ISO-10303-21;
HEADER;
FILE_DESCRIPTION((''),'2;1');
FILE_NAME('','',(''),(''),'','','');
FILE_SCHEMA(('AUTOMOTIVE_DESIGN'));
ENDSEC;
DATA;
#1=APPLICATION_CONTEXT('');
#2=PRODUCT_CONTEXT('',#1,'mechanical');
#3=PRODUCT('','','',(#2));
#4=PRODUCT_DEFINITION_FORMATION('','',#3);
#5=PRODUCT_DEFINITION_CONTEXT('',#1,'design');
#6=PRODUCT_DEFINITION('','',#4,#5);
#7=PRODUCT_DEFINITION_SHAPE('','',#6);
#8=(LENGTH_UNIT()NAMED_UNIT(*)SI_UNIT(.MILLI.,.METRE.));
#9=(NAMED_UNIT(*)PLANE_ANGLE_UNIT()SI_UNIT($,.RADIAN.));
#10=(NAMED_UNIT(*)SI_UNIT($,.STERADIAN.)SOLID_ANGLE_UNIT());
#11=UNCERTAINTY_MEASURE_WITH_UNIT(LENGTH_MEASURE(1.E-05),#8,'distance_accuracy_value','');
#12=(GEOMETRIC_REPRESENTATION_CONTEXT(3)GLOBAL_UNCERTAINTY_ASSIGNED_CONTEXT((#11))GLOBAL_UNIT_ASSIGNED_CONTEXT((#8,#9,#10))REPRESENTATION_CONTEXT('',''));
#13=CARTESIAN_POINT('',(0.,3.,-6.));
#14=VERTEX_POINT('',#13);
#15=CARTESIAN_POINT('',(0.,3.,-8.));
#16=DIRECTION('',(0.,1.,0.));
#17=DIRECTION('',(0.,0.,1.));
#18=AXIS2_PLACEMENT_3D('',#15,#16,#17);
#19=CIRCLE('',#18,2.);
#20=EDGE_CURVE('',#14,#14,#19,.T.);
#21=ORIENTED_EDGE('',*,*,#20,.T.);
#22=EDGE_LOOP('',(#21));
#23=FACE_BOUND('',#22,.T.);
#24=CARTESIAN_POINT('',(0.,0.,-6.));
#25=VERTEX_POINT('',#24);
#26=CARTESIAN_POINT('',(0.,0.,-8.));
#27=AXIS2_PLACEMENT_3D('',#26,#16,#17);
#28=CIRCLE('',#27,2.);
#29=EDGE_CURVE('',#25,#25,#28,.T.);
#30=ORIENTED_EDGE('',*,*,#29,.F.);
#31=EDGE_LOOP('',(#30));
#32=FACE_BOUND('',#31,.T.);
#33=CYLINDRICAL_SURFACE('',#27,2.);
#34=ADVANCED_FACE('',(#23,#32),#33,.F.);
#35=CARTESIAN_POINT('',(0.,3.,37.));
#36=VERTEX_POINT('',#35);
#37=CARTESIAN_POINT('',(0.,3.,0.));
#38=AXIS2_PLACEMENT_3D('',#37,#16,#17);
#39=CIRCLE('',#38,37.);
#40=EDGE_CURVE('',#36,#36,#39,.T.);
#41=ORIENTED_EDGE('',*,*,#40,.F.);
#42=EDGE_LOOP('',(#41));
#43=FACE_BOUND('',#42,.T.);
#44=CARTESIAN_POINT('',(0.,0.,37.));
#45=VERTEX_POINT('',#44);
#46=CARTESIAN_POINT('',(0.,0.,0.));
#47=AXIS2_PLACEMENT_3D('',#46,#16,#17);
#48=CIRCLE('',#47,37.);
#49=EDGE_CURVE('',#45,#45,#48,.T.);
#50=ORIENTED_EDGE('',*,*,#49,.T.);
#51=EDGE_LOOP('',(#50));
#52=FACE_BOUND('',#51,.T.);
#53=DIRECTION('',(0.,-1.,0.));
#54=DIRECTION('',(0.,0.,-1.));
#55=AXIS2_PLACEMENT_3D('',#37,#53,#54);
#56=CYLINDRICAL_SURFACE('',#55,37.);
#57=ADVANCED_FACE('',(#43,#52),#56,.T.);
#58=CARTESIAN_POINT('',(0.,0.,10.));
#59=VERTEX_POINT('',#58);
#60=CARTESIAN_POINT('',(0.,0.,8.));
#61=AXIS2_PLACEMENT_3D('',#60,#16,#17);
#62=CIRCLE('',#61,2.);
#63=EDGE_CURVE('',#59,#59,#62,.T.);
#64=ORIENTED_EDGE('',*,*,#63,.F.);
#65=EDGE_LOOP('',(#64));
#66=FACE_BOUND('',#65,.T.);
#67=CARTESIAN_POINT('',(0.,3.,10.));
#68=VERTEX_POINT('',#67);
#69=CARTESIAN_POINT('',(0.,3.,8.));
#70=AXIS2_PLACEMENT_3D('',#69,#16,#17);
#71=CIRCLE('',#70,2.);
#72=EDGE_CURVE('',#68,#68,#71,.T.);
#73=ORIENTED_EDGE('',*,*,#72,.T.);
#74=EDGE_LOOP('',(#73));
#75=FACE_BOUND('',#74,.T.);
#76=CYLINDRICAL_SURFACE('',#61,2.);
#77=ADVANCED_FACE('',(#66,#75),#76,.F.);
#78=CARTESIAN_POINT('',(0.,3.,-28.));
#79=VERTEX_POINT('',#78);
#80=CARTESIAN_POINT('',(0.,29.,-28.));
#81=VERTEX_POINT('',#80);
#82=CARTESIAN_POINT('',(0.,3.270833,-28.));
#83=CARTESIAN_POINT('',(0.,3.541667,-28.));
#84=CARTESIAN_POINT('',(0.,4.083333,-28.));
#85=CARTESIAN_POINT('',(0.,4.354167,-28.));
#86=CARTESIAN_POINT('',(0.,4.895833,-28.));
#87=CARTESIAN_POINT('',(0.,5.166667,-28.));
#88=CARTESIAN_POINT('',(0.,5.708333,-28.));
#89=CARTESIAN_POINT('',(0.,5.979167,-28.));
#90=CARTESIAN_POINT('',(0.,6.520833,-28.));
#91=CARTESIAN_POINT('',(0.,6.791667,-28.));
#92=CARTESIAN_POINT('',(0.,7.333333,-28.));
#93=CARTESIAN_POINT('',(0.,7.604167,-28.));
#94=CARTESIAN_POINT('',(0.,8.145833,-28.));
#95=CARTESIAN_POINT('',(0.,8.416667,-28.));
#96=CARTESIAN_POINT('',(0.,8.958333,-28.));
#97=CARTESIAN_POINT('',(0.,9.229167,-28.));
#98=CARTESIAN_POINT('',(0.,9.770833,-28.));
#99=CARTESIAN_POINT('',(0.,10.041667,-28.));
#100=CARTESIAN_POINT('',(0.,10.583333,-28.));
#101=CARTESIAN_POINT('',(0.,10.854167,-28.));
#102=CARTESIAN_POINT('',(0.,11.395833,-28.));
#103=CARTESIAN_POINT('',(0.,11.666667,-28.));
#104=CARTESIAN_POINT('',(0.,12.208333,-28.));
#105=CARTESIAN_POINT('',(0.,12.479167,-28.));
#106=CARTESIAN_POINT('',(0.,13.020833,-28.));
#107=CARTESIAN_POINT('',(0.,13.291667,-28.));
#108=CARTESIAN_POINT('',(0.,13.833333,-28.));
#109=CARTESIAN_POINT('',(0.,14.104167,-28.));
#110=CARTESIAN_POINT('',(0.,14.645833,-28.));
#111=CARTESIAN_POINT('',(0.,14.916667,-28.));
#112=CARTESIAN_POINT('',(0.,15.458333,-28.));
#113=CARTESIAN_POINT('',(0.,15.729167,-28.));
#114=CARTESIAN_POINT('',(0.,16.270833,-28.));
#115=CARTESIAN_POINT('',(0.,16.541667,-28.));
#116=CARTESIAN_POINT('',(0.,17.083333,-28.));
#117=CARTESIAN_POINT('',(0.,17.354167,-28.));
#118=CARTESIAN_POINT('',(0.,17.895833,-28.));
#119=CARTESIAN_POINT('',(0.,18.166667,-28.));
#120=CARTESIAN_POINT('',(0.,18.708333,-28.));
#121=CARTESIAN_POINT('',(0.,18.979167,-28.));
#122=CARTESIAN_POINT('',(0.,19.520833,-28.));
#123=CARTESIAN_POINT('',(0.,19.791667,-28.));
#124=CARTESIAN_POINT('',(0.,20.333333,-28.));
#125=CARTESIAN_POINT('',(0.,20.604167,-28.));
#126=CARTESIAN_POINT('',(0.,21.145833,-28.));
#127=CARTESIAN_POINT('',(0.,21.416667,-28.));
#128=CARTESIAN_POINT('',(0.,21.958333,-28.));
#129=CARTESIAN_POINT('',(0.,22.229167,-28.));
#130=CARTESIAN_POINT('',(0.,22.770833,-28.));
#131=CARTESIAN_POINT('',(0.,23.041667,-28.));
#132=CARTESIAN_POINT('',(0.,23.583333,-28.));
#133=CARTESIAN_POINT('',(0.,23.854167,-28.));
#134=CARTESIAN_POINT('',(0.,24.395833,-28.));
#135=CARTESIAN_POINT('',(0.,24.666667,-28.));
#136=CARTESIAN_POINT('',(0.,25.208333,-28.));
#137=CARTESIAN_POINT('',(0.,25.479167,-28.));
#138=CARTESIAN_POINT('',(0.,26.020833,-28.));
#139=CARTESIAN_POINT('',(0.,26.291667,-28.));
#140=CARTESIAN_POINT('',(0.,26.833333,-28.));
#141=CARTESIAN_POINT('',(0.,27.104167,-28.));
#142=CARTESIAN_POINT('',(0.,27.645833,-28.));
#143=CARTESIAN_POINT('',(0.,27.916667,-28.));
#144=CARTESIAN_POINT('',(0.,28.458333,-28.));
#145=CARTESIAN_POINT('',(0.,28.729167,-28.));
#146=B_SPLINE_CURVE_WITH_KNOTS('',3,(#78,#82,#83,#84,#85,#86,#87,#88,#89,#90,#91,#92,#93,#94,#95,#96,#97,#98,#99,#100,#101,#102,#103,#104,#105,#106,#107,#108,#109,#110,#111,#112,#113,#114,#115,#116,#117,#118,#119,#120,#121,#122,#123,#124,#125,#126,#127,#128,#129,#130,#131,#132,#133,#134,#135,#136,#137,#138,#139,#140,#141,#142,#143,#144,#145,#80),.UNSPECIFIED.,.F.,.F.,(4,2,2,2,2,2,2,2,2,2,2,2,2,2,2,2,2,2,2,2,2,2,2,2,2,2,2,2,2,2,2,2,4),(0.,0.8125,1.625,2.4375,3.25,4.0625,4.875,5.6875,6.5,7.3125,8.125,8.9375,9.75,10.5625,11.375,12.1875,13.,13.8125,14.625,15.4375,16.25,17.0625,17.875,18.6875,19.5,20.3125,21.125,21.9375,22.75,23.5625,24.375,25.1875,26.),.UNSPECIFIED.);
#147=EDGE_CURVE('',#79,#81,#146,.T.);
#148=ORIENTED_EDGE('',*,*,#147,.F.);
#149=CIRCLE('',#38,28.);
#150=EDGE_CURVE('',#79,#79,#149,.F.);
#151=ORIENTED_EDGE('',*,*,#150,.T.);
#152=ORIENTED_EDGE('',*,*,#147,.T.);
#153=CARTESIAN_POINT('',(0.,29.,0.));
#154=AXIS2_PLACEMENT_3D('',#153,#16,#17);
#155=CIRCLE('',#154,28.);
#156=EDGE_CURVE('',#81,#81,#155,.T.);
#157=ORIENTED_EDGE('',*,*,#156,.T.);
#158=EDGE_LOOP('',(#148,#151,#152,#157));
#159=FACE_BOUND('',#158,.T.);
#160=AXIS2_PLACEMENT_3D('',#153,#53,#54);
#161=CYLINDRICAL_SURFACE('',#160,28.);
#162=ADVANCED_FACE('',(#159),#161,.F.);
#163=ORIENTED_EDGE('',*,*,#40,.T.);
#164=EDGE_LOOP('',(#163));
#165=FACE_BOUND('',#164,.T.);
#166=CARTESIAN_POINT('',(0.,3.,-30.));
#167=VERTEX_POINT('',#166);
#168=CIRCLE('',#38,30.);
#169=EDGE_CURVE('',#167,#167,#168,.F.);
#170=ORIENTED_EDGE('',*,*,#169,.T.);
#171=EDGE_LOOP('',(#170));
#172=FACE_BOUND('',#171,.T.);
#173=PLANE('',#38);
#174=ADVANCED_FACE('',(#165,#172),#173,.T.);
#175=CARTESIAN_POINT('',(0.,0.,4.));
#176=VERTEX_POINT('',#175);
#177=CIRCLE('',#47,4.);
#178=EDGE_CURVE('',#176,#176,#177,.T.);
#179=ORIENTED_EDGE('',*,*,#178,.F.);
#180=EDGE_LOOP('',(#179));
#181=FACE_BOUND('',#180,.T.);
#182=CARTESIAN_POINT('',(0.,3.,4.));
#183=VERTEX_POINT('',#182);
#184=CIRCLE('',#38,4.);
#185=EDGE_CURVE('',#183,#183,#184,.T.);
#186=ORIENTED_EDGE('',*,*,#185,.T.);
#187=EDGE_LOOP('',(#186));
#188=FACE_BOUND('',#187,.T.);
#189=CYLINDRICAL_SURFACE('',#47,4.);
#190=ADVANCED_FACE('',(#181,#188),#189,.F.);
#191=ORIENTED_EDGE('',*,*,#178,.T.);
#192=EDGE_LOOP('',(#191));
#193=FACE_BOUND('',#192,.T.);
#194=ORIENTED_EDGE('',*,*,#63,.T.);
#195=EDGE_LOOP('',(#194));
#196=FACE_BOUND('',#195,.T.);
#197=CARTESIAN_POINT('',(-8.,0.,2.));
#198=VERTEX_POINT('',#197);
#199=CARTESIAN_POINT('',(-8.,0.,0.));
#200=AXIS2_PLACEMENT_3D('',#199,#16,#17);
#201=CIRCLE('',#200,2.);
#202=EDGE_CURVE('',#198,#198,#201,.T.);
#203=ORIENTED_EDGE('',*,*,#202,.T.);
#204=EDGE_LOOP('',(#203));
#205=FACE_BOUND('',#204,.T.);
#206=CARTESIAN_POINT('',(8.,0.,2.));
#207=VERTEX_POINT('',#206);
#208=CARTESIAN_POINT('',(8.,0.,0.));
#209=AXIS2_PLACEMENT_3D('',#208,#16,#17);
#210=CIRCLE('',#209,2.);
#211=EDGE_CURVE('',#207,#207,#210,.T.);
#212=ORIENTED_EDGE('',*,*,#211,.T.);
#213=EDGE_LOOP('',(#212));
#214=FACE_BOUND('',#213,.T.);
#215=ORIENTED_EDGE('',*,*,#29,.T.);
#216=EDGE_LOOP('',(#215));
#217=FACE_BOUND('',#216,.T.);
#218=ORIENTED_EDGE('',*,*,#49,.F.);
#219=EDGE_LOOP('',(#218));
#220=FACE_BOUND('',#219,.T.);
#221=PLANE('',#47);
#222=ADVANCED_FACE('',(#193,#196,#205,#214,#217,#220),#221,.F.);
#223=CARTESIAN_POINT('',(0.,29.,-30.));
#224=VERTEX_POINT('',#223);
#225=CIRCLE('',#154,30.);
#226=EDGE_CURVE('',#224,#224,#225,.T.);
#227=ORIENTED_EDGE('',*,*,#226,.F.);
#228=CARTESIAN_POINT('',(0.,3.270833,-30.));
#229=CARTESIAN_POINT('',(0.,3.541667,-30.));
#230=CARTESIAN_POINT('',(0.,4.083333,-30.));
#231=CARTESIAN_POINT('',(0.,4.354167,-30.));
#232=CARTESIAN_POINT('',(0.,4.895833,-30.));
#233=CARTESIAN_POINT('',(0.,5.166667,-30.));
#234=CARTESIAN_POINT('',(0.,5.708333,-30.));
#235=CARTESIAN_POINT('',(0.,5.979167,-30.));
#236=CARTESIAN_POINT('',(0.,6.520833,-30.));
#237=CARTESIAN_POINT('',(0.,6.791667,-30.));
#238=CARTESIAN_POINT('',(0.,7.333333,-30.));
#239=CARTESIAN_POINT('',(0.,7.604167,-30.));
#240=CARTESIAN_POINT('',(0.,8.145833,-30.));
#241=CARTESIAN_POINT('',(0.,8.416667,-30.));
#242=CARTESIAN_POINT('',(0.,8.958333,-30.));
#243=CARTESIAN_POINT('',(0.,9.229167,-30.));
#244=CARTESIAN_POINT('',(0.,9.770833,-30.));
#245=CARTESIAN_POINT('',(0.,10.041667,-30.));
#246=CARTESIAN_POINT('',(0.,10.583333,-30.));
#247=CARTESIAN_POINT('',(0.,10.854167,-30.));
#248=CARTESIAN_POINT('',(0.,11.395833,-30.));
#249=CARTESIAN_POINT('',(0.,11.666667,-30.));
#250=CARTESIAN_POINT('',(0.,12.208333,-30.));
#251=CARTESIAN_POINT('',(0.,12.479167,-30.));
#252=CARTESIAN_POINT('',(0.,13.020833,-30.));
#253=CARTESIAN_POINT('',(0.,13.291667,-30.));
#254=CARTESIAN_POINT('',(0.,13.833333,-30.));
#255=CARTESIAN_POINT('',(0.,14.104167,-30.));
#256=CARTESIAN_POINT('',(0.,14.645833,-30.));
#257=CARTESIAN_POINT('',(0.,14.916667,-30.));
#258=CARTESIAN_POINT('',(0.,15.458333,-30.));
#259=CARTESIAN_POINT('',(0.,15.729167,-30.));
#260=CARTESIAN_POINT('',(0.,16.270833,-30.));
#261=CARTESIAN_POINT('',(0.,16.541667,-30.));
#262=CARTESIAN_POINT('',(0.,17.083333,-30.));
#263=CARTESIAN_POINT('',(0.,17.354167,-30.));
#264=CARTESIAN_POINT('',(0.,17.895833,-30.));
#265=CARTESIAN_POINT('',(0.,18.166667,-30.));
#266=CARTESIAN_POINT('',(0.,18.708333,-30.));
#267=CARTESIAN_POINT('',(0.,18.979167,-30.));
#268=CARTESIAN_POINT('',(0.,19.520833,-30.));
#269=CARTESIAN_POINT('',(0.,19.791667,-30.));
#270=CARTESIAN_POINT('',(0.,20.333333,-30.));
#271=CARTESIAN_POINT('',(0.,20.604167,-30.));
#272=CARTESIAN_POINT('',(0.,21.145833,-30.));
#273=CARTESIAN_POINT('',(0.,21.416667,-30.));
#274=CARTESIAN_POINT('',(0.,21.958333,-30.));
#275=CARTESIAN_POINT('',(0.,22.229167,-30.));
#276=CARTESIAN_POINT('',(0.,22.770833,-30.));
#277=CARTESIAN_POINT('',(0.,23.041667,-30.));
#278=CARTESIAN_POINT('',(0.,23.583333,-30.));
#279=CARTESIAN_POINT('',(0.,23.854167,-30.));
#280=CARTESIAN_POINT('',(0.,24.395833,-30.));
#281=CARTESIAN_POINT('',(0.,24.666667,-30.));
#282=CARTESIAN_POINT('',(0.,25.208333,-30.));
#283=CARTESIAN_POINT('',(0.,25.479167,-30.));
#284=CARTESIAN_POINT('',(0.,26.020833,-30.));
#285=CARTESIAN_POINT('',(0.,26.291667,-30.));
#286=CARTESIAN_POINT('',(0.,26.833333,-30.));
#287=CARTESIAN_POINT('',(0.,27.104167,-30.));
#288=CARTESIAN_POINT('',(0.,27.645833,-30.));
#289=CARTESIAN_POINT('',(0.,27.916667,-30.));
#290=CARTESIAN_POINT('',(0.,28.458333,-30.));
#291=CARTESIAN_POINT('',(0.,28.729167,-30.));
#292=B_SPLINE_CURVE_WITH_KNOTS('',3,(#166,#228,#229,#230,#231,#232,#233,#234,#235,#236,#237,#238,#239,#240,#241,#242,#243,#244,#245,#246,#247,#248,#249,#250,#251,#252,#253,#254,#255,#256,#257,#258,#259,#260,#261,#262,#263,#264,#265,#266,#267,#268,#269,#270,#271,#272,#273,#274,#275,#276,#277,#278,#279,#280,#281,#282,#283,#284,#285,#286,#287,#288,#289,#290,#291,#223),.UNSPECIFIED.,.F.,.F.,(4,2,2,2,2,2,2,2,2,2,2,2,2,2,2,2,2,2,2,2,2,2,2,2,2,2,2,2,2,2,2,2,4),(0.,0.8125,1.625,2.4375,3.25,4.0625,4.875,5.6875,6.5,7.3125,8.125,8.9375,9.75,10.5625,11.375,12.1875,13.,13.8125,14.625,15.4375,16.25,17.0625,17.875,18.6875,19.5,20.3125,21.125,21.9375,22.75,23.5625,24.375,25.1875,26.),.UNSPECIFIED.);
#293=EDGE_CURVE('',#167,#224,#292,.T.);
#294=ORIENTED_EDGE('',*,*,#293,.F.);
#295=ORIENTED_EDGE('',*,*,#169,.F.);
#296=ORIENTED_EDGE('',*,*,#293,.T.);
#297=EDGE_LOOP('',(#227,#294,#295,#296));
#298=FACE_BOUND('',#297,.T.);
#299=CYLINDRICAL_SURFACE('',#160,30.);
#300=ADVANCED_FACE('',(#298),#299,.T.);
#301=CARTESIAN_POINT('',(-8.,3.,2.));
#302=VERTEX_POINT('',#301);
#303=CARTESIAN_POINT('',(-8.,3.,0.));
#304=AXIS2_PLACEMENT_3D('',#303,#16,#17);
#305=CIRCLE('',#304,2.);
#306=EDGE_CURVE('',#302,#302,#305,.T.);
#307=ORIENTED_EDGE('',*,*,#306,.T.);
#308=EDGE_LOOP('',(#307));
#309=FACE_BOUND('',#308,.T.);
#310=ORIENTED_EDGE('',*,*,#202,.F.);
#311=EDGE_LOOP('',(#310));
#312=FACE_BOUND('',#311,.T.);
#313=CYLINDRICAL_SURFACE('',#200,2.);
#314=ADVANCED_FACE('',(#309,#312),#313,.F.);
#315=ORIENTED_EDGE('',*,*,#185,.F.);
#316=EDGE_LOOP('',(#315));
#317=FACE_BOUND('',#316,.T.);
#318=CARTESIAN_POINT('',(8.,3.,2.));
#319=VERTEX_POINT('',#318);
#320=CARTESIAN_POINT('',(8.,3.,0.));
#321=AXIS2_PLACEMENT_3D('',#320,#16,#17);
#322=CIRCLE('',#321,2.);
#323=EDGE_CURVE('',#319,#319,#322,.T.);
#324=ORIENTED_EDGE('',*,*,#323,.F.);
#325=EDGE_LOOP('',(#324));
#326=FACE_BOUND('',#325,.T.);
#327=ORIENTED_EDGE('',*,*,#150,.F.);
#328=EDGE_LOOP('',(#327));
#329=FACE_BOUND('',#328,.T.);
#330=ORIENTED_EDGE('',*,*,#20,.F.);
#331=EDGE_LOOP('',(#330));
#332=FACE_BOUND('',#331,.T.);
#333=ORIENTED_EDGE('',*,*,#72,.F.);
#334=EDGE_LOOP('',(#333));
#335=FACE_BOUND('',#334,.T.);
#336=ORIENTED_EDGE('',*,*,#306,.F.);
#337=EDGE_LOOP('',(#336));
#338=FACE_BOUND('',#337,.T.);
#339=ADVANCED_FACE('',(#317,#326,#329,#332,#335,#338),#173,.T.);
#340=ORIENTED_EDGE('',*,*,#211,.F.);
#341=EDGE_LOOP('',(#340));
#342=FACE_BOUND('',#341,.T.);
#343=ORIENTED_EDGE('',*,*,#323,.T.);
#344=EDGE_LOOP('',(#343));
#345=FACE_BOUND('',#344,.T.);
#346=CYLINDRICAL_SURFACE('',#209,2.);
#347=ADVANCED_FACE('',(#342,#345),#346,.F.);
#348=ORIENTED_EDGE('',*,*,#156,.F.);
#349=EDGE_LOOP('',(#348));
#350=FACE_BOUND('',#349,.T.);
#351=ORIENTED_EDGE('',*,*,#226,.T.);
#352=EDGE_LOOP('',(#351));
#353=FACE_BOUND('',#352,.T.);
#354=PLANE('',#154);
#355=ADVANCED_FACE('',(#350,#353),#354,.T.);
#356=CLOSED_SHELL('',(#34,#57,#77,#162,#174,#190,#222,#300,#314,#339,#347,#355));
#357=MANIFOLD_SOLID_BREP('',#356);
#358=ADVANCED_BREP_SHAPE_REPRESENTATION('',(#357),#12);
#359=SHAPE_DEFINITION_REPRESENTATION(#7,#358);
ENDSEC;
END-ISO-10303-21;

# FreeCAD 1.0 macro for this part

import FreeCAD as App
import Part
import Sketcher

doc = App.newDocument("Part")
body = doc.addObject("PartDesign::Body", "Body")

sketch1 = body.newObject("Sketcher::SketchObject", "Sketch")
sketch1.AttachmentSupport = (doc.getObject("XZ_Plane"), [""])
sketch1.MapMode = "FlatFace"
sketch1.addGeometry(Part.Circle(App.Vector(0, 0, 0), App.Vector(0, 0, 1), 37), False)
sketch1.addConstraint(Sketcher.Constraint("Coincident", 0, 3, -1, 1))
sketch1.addConstraint(Sketcher.Constraint("Diameter", 0, 74.0))
pad1 = body.newObject("PartDesign::Pad", "Pad")
pad1.Profile = sketch1
pad1.Length = 3
pad1.Reversed = True

sketch2 = body.newObject("Sketcher::SketchObject", "Sketch001")
sketch2.AttachmentSupport = (doc.getObject("XZ_Plane"), [""])
sketch2.MapMode = "FlatFace"
sketch2.addGeometry(Part.Circle(App.Vector(0, 0, 0), App.Vector(0, 0, 1), 30), False)
sketch2.addGeometry(Part.Circle(App.Vector(0, 0, 0), App.Vector(0, 0, 1), 28), False)
sketch2.addConstraint(Sketcher.Constraint("Coincident", 0, 3, -1, 1))
sketch2.addConstraint(Sketcher.Constraint("Coincident", 1, 3, -1, 1))
sketch2.addConstraint(Sketcher.Constraint("Diameter", 0, 60.0))
sketch2.addConstraint(Sketcher.Constraint("Diameter", 1, 56.0))
pad2 = body.newObject("PartDesign::Pad", "Pad001")
pad2.Profile = sketch2
pad2.Length = 29
pad2.Reversed = True

sketch3 = body.newObject("Sketcher::SketchObject", "Sketch002")
sketch3.AttachmentSupport = (doc.getObject("XZ_Plane"), [""])
sketch3.MapMode = "FlatFace"
sketch3.AttachmentOffset = App.Placement(App.Vector(0, 0, -3), App.Rotation())
sketch3.addGeometry(Part.Circle(App.Vector(0, 0, 0), App.Vector(0, 0, 1), 4), False)
sketch3.addGeometry(Part.Circle(App.Vector(8, 0, 0), App.Vector(0, 0, 1), 2), False)
sketch3.addGeometry(Part.Circle(App.Vector(0, 8, 0), App.Vector(0, 0, 1), 2), False)
sketch3.addGeometry(Part.Circle(App.Vector(-8, 0, 0), App.Vector(0, 0, 1), 2), False)
sketch3.addGeometry(Part.Circle(App.Vector(0, -8, 0), App.Vector(0, 0, 1), 2), False)
sketch3.addConstraint(Sketcher.Constraint("Coincident", 0, 3, -1, 1))
sketch3.addConstraint(Sketcher.Constraint("Equal", 1, 2))
sketch3.addConstraint(Sketcher.Constraint("Equal", 2, 3))
sketch3.addConstraint(Sketcher.Constraint("Equal", 3, 4))
sketch3.addConstraint(Sketcher.Constraint("Symmetric", 1, 3, 3, 3, -1, 1))
sketch3.addConstraint(Sketcher.Constraint("Symmetric", 2, 3, 4, 3, -1, 1))
sketch3.addConstraint(Sketcher.Constraint("PointOnObject", 1, 3, -1))
sketch3.addConstraint(Sketcher.Constraint("PointOnObject", 2, 3, -2))
sketch3.addConstraint(Sketcher.Constraint("Diameter", 0, 8.0))
sketch3.addConstraint(Sketcher.Constraint("Diameter", 1, 4.0))
sketch3.addConstraint(Sketcher.Constraint("DistanceX", -1, 1, 1, 3, 8.0))
sketch3.addConstraint(Sketcher.Constraint("DistanceY", -1, 1, 2, 3, 8.0))
pocket1 = body.newObject("PartDesign::Pocket", "Pocket")
pocket1.Profile = sketch3
pocket1.Type = "ThroughAll"
pocket1.Reversed = True

doc.recompute()
